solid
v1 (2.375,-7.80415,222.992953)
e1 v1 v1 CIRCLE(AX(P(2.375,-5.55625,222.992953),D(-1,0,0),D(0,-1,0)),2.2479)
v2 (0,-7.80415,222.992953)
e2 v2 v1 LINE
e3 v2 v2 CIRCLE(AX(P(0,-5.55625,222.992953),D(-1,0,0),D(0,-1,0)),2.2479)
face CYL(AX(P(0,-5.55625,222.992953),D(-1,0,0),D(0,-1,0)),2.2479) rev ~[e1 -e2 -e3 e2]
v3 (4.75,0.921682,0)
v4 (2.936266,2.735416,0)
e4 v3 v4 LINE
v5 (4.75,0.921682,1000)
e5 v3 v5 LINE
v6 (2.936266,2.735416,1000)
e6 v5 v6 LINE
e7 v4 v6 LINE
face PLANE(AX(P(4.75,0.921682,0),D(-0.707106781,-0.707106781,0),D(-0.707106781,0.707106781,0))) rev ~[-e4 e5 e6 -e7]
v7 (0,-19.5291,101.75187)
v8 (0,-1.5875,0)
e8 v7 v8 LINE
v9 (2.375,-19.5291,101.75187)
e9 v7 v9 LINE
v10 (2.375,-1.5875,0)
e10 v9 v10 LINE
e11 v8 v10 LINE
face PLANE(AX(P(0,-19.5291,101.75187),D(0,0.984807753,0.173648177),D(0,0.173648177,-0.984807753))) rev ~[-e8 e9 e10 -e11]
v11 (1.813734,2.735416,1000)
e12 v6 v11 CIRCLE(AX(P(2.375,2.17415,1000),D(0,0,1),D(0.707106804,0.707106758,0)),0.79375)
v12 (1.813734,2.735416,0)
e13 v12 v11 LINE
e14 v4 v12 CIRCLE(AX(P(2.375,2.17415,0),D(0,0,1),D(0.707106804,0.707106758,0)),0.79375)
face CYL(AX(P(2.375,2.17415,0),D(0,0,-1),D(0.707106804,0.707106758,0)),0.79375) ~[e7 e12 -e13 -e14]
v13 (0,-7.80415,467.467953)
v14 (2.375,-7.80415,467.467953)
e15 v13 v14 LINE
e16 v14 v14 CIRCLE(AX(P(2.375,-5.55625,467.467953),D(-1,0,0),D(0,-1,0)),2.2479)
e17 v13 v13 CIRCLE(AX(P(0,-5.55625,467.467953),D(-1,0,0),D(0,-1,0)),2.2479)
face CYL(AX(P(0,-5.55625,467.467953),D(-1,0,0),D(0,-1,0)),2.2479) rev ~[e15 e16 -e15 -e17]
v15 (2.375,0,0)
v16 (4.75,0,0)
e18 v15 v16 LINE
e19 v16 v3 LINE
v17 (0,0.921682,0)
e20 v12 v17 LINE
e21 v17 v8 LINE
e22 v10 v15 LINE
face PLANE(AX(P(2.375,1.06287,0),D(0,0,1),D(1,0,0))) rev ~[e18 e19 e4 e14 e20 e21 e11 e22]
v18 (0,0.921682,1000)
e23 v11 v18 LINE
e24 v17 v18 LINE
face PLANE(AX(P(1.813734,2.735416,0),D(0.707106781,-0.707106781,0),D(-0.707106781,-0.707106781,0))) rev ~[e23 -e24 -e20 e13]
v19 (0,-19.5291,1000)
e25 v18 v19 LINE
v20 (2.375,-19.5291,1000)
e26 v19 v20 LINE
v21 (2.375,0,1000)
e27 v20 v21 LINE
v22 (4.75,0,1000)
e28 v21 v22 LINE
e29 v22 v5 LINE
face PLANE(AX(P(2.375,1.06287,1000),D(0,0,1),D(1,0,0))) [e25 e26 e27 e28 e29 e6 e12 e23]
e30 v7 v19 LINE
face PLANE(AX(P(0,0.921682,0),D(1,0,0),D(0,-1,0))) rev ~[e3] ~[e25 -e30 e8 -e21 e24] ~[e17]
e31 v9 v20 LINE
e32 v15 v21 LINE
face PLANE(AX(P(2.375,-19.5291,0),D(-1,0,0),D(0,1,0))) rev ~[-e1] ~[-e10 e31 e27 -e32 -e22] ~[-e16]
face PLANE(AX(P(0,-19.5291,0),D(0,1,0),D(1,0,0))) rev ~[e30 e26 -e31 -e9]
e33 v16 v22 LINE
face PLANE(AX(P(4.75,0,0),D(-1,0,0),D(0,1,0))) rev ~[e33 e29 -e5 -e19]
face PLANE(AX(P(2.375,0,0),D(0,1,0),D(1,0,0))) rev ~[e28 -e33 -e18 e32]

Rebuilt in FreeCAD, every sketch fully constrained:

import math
import FreeCAD as App
import Part
import Sketcher
Q = App.Units.Quantity

doc = App.newDocument("Part")
params = doc.addObject("Spreadsheet::Sheet", "Params")
for row, (alias, value) in enumerate([
    ("sketch1_radius", "0.03125 in"),
    ("pad1_length", "1000 mm"),
    ("sketch2_diameter", "0.177 in"),
], start=1):
    params.set(f"A{row}", alias)
    params.set(f"B{row}", "=" + value)
    params.setAlias(f"B{row}", alias)

body = doc.addObject("PartDesign::Body", "Body")

# Sketch on XY plane
sketch1 = body.newObject("Sketcher::SketchObject", "Sketch")
sketch1.AttachmentSupport = (doc.getObject("XY_Plane"), [""])
sketch1.MapMode = "FlatFace"
sketch1.addGeometry([
    Part.LineSegment(App.Vector(0, 0.9, 0), App.Vector(0, -19.5, 0)),  # 0
    Part.LineSegment(App.Vector(0, -19.5, 0), App.Vector(2.4, -19.5, 0)),  # 1
    Part.LineSegment(App.Vector(2.4, -19.5, 0), App.Vector(2.4, 0, 0)),  # 2
    Part.LineSegment(App.Vector(2.4, 0, 0), App.Vector(4.8, 0, 0)),  # 3
    Part.LineSegment(App.Vector(4.8, 0, 0), App.Vector(4.8, 0.9, 0)),  # 4
    Part.LineSegment(App.Vector(4.8, 0.9, 0), App.Vector(2.9, 2.7, 0)),  # 5
    Part.ArcOfCircle(Part.Circle(App.Vector(2.4, 2.2, 0), App.Vector(0, 0, 1), 0.8), math.radians(45), math.radians(135)),  # 6
    Part.LineSegment(App.Vector(1.8, 2.7, 0), App.Vector(0, 0.9, 0)),  # 7
], False)
sketch1.addConstraint([
    Sketcher.Constraint("Coincident", 0, 2, 1, 1),
    Sketcher.Constraint("Coincident", 1, 2, 2, 1),
    Sketcher.Constraint("Coincident", 2, 2, 3, 1),
    Sketcher.Constraint("Coincident", 3, 2, 4, 1),
    Sketcher.Constraint("Coincident", 4, 2, 5, 1),
    Sketcher.Constraint("Tangent", 5, 2, 6, 1),
    Sketcher.Constraint("Tangent", 6, 2, 7, 1),
    Sketcher.Constraint("Coincident", 7, 2, 0, 1),
    Sketcher.Constraint("Vertical", 0),
    Sketcher.Constraint("Horizontal", 1),
    Sketcher.Constraint("Vertical", 2),
    Sketcher.Constraint("Horizontal", 3),
    Sketcher.Constraint("Vertical", 4),
    Sketcher.Constraint("PointOnObject", 0, 2, -2),
    Sketcher.Constraint("PointOnObject", 2, 2, -1),
    Sketcher.Constraint("Perpendicular", 5, 7),
    Sketcher.Constraint("Horizontal", 5, 2, 6, 2),
    Sketcher.Constraint("Horizontal", 4, 2, 7, 2),
    Sketcher.Constraint("Vertical", 6, 3, 1, 2),
    Sketcher.Constraint("Radius", 6, Q("0.03125 in")),
    Sketcher.Constraint("DistanceX", 1, 1, 1, 2, 2.375),
    Sketcher.Constraint("DistanceY", 2, 1, 2, 2, 19.5291),
    Sketcher.Constraint("DistanceY", 0, 2, 0, 1, 20.450782),
])
sketch1.setExpression("Constraints[19]", "Params.sketch1_radius")
pad1 = body.newObject("PartDesign::Pad", "Pad")
pad1.Profile = sketch1
pad1.setExpression("Length", "Params.pad1_length")

# Sketch on YZ plane
sketch2 = body.newObject("Sketcher::SketchObject", "Sketch001")
sketch2.AttachmentSupport = (doc.getObject("YZ_Plane"), [""])
sketch2.MapMode = "FlatFace"
sketch2.addGeometry([
    Part.LineSegment(App.Vector(-1.6, 0, 0), App.Vector(-19.5, 0, 0)),  # 0
    Part.LineSegment(App.Vector(-19.5, 0, 0), App.Vector(-19.5, 101.8, 0)),  # 1
    Part.LineSegment(App.Vector(-19.5, 101.8, 0), App.Vector(-1.6, 0, 0)),  # 2
    Part.Circle(App.Vector(-5.6, 223, 0), App.Vector(0, 0, 1), 2.2),  # 3
    Part.Circle(App.Vector(-5.6, 467.5, 0), App.Vector(0, 0, 1), 2.2),  # 4
], False)
sketch2.addConstraint([
    Sketcher.Constraint("Coincident", 0, 2, 1, 1),
    Sketcher.Constraint("Coincident", 1, 2, 2, 1),
    Sketcher.Constraint("Coincident", 2, 2, 0, 1),
    Sketcher.Constraint("Horizontal", 0),
    Sketcher.Constraint("Vertical", 1),
    Sketcher.Constraint("Equal", 3, 4),
    Sketcher.Constraint("PointOnObject", 0, 2, -1),
    Sketcher.Constraint("Vertical", 3, 3, 4, 3),
    Sketcher.Constraint("Diameter", 3, Q("0.177 in")),
    Sketcher.Constraint("Angle", 2, Q("-80 deg")),
    Sketcher.Constraint("DistanceX", 3, 3, -1, 1, Q("0.21875 in")),
    Sketcher.Constraint("DistanceX", 2, 2, -1, 1, Q("0.0625 in")),
    Sketcher.Constraint("DistanceY", 3, 3, 4, 3, Q("9.625 in")),
    Sketcher.Constraint("DistanceX", 0, 2, 0, 1, 17.9416),
    Sketcher.Constraint("DistanceY", -1, 1, 3, 3, 222.992953),
])
sketch2.setExpression("Constraints[8]", "Params.sketch2_diameter")
pocket1 = body.newObject("PartDesign::Pocket", "Pocket")
pocket1.Profile = sketch2
pocket1.Type = "ThroughAll"
pocket1.Reversed = True

doc.recompute()
